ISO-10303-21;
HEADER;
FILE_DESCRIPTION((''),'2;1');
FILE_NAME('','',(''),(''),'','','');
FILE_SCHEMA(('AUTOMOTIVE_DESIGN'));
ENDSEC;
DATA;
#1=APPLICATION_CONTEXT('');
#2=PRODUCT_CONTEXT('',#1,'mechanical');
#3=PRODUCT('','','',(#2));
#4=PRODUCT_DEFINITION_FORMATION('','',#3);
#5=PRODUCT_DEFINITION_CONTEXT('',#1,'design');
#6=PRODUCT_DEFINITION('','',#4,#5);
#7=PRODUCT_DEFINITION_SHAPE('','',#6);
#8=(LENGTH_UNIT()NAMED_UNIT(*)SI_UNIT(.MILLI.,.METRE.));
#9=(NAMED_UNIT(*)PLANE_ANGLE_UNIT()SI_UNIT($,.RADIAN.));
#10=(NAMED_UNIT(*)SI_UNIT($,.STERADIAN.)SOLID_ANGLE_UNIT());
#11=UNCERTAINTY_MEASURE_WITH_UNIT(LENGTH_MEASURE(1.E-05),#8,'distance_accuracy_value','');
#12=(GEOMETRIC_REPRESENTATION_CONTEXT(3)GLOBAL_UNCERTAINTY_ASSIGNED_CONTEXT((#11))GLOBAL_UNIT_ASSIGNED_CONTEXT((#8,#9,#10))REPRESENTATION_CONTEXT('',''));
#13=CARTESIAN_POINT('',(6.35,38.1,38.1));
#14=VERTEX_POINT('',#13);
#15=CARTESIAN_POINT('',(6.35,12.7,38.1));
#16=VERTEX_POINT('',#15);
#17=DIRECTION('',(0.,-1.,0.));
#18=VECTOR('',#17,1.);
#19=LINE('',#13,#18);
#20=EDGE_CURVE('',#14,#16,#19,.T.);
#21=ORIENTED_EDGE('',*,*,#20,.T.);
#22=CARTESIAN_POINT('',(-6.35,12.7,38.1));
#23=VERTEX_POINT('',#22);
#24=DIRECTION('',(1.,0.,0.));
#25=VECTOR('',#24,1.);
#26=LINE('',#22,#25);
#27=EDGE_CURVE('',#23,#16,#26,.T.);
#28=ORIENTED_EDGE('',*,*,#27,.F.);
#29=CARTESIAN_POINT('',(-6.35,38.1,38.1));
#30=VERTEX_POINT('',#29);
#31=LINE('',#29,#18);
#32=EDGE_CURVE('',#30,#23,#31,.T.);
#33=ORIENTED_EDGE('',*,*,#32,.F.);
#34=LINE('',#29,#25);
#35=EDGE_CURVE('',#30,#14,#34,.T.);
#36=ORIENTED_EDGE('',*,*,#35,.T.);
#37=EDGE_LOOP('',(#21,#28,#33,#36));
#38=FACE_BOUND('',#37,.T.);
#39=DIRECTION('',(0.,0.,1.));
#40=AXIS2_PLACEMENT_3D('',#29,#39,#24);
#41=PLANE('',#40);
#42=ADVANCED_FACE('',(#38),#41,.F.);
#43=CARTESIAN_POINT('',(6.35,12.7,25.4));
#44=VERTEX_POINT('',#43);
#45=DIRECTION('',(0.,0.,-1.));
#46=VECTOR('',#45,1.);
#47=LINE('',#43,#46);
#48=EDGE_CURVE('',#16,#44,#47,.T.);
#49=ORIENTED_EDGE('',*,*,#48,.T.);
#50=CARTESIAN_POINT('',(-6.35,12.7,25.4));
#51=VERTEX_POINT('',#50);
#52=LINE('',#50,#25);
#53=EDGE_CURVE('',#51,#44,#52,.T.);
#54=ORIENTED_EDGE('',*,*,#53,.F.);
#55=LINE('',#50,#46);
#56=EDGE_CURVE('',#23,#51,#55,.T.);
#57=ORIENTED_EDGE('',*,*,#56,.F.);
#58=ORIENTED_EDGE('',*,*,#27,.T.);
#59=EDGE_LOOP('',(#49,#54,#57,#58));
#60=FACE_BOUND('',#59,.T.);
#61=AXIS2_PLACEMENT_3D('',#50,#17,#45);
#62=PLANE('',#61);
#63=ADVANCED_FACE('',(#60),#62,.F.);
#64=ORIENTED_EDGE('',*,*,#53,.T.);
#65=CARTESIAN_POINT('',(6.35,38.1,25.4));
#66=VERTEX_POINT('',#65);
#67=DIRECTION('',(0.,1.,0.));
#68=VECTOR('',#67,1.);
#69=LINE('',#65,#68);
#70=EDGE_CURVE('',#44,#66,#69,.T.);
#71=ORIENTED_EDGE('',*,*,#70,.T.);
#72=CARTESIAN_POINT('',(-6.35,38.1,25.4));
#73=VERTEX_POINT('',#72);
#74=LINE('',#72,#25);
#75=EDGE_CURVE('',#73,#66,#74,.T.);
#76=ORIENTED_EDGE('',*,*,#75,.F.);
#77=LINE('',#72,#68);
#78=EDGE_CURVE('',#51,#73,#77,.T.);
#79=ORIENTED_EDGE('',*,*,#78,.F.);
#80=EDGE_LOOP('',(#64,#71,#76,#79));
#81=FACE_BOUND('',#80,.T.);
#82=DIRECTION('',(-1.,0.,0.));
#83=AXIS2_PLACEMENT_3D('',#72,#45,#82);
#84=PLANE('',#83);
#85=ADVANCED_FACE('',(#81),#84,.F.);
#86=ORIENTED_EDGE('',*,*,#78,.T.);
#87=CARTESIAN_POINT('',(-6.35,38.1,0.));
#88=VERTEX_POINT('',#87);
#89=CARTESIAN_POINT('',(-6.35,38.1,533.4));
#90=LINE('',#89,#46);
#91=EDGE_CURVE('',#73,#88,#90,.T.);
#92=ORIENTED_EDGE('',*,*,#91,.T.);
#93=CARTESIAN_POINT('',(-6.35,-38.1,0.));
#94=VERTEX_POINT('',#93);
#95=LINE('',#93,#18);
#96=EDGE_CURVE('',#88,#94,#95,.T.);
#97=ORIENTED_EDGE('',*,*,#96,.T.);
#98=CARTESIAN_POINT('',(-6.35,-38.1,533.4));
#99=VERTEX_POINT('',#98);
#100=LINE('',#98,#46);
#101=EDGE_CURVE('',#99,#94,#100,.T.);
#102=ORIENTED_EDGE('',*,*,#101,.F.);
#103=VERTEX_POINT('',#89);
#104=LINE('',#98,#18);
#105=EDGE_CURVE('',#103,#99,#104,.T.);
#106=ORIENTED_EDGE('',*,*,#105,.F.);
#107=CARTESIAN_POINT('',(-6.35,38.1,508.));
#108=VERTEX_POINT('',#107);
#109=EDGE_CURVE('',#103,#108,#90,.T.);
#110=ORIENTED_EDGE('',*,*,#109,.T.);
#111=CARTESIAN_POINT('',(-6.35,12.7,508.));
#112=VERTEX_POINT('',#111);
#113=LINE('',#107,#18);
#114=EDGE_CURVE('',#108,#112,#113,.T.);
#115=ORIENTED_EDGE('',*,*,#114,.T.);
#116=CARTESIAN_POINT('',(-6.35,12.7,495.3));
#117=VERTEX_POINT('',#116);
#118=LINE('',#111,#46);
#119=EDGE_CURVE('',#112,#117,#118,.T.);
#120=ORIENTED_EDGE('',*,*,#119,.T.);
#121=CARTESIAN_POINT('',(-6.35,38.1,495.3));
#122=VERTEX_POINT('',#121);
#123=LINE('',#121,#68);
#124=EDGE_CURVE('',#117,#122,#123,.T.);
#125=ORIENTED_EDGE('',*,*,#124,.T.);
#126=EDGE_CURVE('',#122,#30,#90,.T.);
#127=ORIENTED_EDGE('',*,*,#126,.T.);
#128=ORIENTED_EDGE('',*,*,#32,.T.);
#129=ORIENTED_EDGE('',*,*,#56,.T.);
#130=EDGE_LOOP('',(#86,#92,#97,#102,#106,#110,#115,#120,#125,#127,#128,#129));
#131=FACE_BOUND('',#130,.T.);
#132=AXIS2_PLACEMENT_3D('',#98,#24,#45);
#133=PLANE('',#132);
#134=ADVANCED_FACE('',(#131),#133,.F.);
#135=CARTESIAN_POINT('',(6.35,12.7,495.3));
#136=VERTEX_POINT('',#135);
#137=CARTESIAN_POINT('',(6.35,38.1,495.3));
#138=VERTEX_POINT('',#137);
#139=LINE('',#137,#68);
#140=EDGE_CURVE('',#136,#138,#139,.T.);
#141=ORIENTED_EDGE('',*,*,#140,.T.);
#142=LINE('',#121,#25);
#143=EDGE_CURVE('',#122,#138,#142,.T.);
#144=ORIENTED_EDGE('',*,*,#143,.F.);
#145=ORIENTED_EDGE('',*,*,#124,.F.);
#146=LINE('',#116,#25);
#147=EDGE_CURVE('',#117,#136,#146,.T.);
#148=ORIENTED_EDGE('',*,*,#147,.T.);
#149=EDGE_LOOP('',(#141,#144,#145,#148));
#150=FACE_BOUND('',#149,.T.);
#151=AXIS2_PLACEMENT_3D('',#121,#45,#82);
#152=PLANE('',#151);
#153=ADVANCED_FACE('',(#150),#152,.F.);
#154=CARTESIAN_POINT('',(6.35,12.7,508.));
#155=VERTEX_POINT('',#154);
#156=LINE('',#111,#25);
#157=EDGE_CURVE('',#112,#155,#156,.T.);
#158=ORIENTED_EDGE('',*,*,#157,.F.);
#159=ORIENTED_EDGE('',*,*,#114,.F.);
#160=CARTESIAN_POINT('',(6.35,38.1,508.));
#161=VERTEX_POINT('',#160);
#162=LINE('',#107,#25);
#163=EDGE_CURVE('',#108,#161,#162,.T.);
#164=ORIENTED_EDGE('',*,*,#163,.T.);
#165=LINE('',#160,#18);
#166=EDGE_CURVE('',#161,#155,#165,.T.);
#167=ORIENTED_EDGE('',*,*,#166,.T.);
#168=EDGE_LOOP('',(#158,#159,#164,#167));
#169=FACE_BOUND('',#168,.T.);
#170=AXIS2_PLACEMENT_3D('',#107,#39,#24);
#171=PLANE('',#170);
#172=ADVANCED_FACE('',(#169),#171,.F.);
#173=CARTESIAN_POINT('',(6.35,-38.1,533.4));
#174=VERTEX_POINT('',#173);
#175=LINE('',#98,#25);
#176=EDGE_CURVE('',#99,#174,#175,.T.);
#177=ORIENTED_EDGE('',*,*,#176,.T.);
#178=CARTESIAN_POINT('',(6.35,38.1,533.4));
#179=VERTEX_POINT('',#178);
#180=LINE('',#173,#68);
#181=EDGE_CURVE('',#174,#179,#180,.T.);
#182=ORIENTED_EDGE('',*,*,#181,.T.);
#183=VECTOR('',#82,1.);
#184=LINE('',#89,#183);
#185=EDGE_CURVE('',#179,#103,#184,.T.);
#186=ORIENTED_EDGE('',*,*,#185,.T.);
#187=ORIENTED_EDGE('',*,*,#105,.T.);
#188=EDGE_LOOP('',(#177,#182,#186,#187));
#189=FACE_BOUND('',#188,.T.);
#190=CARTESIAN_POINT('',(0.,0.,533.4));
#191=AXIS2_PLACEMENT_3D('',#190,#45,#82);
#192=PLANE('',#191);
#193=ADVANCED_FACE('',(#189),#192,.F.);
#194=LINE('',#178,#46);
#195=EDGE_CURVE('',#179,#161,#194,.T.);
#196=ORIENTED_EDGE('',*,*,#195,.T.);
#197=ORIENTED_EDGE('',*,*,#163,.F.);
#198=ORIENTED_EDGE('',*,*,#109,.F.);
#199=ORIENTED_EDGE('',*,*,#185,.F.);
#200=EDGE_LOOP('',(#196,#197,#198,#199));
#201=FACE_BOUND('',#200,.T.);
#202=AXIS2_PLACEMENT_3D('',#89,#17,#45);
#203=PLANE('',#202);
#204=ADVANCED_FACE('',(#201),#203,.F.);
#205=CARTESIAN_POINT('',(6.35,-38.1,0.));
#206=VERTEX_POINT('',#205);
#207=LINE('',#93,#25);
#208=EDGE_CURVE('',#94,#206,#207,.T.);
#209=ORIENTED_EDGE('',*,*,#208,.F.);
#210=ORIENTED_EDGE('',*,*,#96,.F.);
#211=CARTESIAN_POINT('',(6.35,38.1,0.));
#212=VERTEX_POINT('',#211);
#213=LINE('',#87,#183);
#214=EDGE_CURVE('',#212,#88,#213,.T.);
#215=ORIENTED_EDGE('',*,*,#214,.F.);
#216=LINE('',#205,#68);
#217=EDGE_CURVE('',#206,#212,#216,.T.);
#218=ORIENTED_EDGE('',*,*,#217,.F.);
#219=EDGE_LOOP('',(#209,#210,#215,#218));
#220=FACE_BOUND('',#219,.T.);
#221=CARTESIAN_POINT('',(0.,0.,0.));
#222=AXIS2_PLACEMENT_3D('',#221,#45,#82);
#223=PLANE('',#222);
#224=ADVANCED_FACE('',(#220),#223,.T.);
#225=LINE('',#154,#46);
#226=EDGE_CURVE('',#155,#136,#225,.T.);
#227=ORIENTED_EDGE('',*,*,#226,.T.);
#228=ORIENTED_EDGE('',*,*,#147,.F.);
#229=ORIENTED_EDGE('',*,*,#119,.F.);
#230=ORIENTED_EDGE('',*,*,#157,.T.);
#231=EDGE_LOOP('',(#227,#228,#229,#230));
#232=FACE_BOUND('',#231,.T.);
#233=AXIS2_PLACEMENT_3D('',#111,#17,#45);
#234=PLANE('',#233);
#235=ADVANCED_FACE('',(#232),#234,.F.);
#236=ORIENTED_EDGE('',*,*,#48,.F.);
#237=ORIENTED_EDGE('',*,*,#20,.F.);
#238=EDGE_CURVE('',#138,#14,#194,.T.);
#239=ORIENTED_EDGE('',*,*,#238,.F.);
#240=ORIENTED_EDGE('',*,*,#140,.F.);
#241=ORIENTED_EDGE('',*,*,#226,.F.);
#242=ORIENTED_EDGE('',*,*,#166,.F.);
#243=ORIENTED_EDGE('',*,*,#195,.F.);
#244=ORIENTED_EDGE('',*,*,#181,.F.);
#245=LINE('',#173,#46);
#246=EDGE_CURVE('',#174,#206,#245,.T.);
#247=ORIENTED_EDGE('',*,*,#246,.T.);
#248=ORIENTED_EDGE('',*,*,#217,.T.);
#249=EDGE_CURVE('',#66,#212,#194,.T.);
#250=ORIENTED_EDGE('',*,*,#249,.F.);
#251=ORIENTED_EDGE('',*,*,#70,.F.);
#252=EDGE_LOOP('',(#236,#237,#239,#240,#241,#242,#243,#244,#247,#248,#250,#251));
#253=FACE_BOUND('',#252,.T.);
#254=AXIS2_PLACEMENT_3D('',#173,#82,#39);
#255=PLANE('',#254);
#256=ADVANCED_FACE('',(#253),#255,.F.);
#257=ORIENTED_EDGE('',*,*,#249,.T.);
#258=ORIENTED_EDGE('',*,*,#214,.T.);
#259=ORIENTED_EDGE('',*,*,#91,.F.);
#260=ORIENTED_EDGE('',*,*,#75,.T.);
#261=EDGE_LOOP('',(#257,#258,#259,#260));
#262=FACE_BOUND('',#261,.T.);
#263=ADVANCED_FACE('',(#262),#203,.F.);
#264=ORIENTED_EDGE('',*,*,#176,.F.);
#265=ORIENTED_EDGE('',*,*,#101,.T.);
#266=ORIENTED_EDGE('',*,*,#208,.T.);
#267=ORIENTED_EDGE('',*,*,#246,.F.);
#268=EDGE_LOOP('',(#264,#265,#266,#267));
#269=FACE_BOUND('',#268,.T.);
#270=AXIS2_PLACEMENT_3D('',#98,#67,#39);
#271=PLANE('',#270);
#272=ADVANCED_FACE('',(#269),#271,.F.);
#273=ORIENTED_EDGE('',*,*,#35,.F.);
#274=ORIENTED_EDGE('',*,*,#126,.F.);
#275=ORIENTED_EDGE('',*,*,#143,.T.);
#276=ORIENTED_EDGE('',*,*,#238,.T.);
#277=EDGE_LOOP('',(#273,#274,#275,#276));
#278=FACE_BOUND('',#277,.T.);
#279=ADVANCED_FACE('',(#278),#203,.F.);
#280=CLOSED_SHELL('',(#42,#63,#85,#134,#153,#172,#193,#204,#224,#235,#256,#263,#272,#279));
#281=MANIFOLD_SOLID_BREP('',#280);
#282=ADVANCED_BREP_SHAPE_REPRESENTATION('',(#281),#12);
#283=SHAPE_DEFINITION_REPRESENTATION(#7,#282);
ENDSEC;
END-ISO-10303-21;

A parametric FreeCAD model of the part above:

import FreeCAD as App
import Part
import Sketcher
from FreeCAD import Vector
Q = App.Units.Quantity


def add_polygon(sketch, points):
    """Adds a closed chain of lines whose ends are joined by coincident constraints."""
    first, n = sketch.GeometryCount, len(points)
    for a, b in zip(points, points[1:] + points[:1]):
        sketch.addGeometry(Part.LineSegment(App.Vector(*a, 0), App.Vector(*b, 0)), False)
    for i in range(n):
        sketch.addConstraint(Sketcher.Constraint("Coincident", first + i, 2, first + (i + 1) % n, 1))

doc = App.newDocument("Part")
body = doc.addObject("PartDesign::Body", "Body")

sketch1 = doc.addObject("Sketcher::SketchObject", "Sketch")
body.addObject(sketch1)
sketch1.AttachmentSupport = (doc.XY_Plane, [""])
sketch1.MapMode = "FlatFace"
add_polygon(sketch1, [(-6, 38), (-6, -38), (6, -38), (6, 38)])
sketch1.addConstraint(Sketcher.Constraint("Vertical", 0))
sketch1.addConstraint(Sketcher.Constraint("Horizontal", 1))
sketch1.addConstraint(Sketcher.Constraint("Vertical", 2))
sketch1.addConstraint(Sketcher.Constraint("Horizontal", 3))
sketch1.addConstraint(Sketcher.Constraint("Symmetric", 0, 2, 2, 2, -1, 1))
sketch1.addConstraint(Sketcher.Constraint("DistanceY", 0, 2, 0, 1, Q("3 in")))
sketch1.addConstraint(Sketcher.Constraint("DistanceX", 1, 1, 1, 2, Q("0.5 in")))
pad1 = doc.addObject("PartDesign::Pad", "Pad")
body.addObject(pad1)
pad1.Profile = sketch1
pad1.Length = Q("21 in")

sketch2 = doc.addObject("Sketcher::SketchObject", "Sketch001")
body.addObject(sketch2)
sketch2.AttachmentSupport = (doc.YZ_Plane, [""])
sketch2.MapMode = "FlatFace"
sketch2.AttachmentOffset = App.Placement(Vector(0, 0, 0.25 * 25.4), App.Rotation())
add_polygon(sketch2, [(38, 508), (13, 508), (13, 495), (38, 495)])
add_polygon(sketch2, [(38, 38), (13, 38), (13, 25), (38, 25)])
sketch2.addConstraint(Sketcher.Constraint("Horizontal", 0))
sketch2.addConstraint(Sketcher.Constraint("Vertical", 1))
sketch2.addConstraint(Sketcher.Constraint("Horizontal", 2))
sketch2.addConstraint(Sketcher.Constraint("Vertical", 3))
sketch2.addConstraint(Sketcher.Constraint("Horizontal", 4))
sketch2.addConstraint(Sketcher.Constraint("Vertical", 5))
sketch2.addConstraint(Sketcher.Constraint("Horizontal", 6))
sketch2.addConstraint(Sketcher.Constraint("Vertical", 7))
sketch2.addConstraint(Sketcher.Constraint("Vertical", 1, 2, 4, 2))
sketch2.addConstraint(Sketcher.Constraint("Vertical", 3, 2, 6, 2))
sketch2.addConstraint(Sketcher.Constraint("Equal", 3, 5))
sketch2.addConstraint(Sketcher.Constraint("DistanceX", 0, 2, 0, 1, Q("1 in")))
sketch2.addConstraint(Sketcher.Constraint("DistanceY", 1, 2, 1, 1, Q("0.5 in")))
sketch2.addConstraint(Sketcher.Constraint("DistanceY", -1, 1, 0, 2, Q("20 in")))
sketch2.addConstraint(Sketcher.Constraint("DistanceY", -1, 1, 5, 2, Q("1 in")))
sketch2.addConstraint(Sketcher.Constraint("DistanceX", -1, 1, 0, 2, Q("0.5 in")))
pocket1 = doc.addObject("PartDesign::Pocket", "Pocket")
body.addObject(pocket1)
pocket1.Profile = sketch2
pocket1.Type = "ThroughAll"

doc.recompute()
